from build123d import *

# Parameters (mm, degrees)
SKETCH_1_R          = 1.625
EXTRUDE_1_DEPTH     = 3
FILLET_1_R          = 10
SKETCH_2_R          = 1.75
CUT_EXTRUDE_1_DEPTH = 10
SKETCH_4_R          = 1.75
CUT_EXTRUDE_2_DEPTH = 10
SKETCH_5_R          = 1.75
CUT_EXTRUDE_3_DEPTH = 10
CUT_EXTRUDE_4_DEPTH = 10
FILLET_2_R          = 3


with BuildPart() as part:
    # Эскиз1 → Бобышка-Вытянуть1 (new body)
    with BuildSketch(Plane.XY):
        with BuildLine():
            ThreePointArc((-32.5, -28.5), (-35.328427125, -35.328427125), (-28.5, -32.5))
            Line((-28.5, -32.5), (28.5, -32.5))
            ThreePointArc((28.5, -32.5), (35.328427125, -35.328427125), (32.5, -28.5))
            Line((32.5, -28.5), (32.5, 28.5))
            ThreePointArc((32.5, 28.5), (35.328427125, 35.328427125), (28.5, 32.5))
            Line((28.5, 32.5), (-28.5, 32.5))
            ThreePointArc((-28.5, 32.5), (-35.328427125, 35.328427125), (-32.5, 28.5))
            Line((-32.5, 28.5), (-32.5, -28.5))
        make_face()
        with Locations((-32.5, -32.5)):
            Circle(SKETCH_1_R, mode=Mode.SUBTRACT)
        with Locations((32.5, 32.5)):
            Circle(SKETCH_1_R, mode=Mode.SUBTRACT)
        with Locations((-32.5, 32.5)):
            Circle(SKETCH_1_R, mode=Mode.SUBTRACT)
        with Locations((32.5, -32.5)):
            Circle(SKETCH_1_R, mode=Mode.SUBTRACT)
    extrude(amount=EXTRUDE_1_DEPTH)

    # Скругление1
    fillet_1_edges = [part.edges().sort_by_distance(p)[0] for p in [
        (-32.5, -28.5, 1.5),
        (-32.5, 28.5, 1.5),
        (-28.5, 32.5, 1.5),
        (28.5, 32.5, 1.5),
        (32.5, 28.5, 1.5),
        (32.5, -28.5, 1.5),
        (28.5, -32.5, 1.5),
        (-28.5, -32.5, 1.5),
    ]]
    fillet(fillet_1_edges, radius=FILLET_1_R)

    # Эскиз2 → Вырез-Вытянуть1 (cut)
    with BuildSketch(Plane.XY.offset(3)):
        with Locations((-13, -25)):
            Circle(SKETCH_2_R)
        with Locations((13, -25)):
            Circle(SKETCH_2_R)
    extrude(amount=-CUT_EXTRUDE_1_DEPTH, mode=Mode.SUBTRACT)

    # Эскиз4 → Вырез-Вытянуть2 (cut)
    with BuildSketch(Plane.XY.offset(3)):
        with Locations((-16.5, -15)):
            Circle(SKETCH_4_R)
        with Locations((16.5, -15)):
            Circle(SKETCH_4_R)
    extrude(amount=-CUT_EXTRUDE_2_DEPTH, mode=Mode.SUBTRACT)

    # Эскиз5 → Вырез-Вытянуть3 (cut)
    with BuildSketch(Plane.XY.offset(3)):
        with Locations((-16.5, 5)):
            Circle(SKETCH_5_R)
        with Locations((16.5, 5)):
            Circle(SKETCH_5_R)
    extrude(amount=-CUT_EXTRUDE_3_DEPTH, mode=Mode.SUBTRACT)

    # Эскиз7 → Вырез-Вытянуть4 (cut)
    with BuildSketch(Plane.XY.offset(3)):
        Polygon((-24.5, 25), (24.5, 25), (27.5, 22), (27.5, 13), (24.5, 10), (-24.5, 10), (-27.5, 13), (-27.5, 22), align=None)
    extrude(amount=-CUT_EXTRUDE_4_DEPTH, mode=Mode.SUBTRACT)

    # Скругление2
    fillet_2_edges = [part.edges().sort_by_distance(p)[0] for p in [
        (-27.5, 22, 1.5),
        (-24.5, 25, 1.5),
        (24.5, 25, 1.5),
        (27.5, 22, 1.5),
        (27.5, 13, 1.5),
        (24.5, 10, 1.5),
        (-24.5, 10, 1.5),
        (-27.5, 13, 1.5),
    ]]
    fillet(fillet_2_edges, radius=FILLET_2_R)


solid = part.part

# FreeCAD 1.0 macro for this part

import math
import FreeCAD as App
import Part
import Sketcher
Q = App.Units.Quantity


def edges_at(feature, points):
    """Names of the edges that pass closest to the given points."""
    edges = feature.Shape.Edges
    near = lambda p: min(range(len(edges)), key=lambda i: edges[i].distToShape(Part.Vertex(*p))[0])
    return sorted({f"Edge{near(p) + 1}" for p in points})

doc = App.newDocument("Part")
body = doc.addObject("PartDesign::Body", "Body")

sketch1 = body.newObject("Sketcher::SketchObject", "Sketch")
sketch1.AttachmentSupport = (doc.getObject("XY_Plane"), [""])
sketch1.MapMode = "FlatFace"
sketch1.addGeometry(Part.ArcOfCircle(Part.Circle(App.Vector(-32.5, -32.5, 0), App.Vector(0, 0, 1), 4), math.radians(90), math.radians(360)), False)
sketch1.addGeometry(Part.LineSegment(App.Vector(-28.5, -32.5, 0), App.Vector(28.5, -32.5, 0)), False)
sketch1.addGeometry(Part.ArcOfCircle(Part.Circle(App.Vector(32.5, -32.5, 0), App.Vector(0, 0, 1), 4), math.radians(180), math.radians(450)), False)
sketch1.addGeometry(Part.LineSegment(App.Vector(32.5, -28.5, 0), App.Vector(32.5, 28.5, 0)), False)
sketch1.addGeometry(Part.ArcOfCircle(Part.Circle(App.Vector(32.5, 32.5, 0), App.Vector(0, 0, 1), 4), math.radians(-90), math.radians(180)), False)
sketch1.addGeometry(Part.LineSegment(App.Vector(28.5, 32.5, 0), App.Vector(-28.5, 32.5, 0)), False)
sketch1.addGeometry(Part.ArcOfCircle(Part.Circle(App.Vector(-32.5, 32.5, 0), App.Vector(0, 0, 1), 4), math.radians(0), math.radians(270)), False)
sketch1.addGeometry(Part.LineSegment(App.Vector(-32.5, 28.5, 0), App.Vector(-32.5, -28.5, 0)), False)
sketch1.addGeometry(Part.Circle(App.Vector(-32.5, -32.5, 0), App.Vector(0, 0, 1), 1.6), False)
sketch1.addGeometry(Part.Circle(App.Vector(32.5, -32.5, 0), App.Vector(0, 0, 1), 1.6), False)
sketch1.addGeometry(Part.Circle(App.Vector(-32.5, 32.5, 0), App.Vector(0, 0, 1), 1.6), False)
sketch1.addGeometry(Part.Circle(App.Vector(32.5, 32.5, 0), App.Vector(0, 0, 1), 1.6), False)
sketch1.addConstraint(Sketcher.Constraint("Coincident", 0, 2, 1, 1))
sketch1.addConstraint(Sketcher.Constraint("Coincident", 1, 2, 2, 1))
sketch1.addConstraint(Sketcher.Constraint("Coincident", 2, 2, 3, 1))
sketch1.addConstraint(Sketcher.Constraint("Coincident", 3, 2, 4, 1))
sketch1.addConstraint(Sketcher.Constraint("Coincident", 4, 2, 5, 1))
sketch1.addConstraint(Sketcher.Constraint("Coincident", 5, 2, 6, 1))
sketch1.addConstraint(Sketcher.Constraint("Coincident", 6, 2, 7, 1))
sketch1.addConstraint(Sketcher.Constraint("Coincident", 7, 2, 0, 1))
sketch1.addConstraint(Sketcher.Constraint("Horizontal", 1))
sketch1.addConstraint(Sketcher.Constraint("Vertical", 3))
sketch1.addConstraint(Sketcher.Constraint("Horizontal", 5))
sketch1.addConstraint(Sketcher.Constraint("Vertical", 7))
sketch1.addConstraint(Sketcher.Constraint("Coincident", 8, 3, 0, 3))
sketch1.addConstraint(Sketcher.Constraint("Coincident", 9, 3, 2, 3))
sketch1.addConstraint(Sketcher.Constraint("Coincident", 10, 3, 6, 3))
sketch1.addConstraint(Sketcher.Constraint("Coincident", 11, 3, 4, 3))
sketch1.addConstraint(Sketcher.Constraint("Equal", 0, 2))
sketch1.addConstraint(Sketcher.Constraint("Equal", 2, 4))
sketch1.addConstraint(Sketcher.Constraint("Equal", 4, 6))
sketch1.addConstraint(Sketcher.Constraint("Equal", 8, 9))
sketch1.addConstraint(Sketcher.Constraint("Equal", 9, 10))
sketch1.addConstraint(Sketcher.Constraint("Equal", 10, 11))
sketch1.addConstraint(Sketcher.Constraint("Symmetric", 0, 3, 4, 3, -1, 1))
sketch1.addConstraint(Sketcher.Constraint("Symmetric", 2, 3, 6, 3, -1, 1))
sketch1.addConstraint(Sketcher.Constraint("Symmetric", 0, 3, 2, 3, -2))
sketch1.addConstraint(Sketcher.Constraint("Horizontal", 9, 3, 0, 2))
sketch1.addConstraint(Sketcher.Constraint("Horizontal", 11, 3, 4, 2))
sketch1.addConstraint(Sketcher.Constraint("Vertical", 11, 3, 2, 2))
sketch1.addConstraint(Sketcher.Constraint("Vertical", 10, 3, 6, 2))
sketch1.addConstraint(Sketcher.Constraint("Equal", 5, 3))
sketch1.addConstraint(Sketcher.Constraint("Radius", 0, Q("4 mm")))
sketch1.addConstraint(Sketcher.Constraint("Diameter", 8, Q("3.25 mm")))
sketch1.addConstraint(Sketcher.Constraint("DistanceX", 1, 1, 1, 2, Q("57 mm")))
pad1 = body.newObject("PartDesign::Pad", "Pad")
pad1.Profile = sketch1
pad1.Length = 3
doc.recompute()

fillet = body.newObject("PartDesign::Fillet", "Fillet")
fillet.Base = (pad1, edges_at(pad1, [
    (-32.5, -28.5, 1.5),
    (-32.5, 28.5, 1.5),
    (-28.5, 32.5, 1.5),
    (28.5, 32.5, 1.5),
    (32.5, 28.5, 1.5),
    (32.5, -28.5, 1.5),
    (28.5, -32.5, 1.5),
    (-28.5, -32.5, 1.5),
]))
fillet.Radius = 10

sketch2 = body.newObject("Sketcher::SketchObject", "Sketch001")
sketch2.AttachmentSupport = (doc.getObject("XY_Plane"), [""])
sketch2.MapMode = "FlatFace"
sketch2.AttachmentOffset = App.Placement(App.Vector(0, 0, 3), App.Rotation())
sketch2.addGeometry(Part.Circle(App.Vector(-13, -25, 0), App.Vector(0, 0, 1), 1.8), False)
sketch2.addGeometry(Part.Circle(App.Vector(13, -25, 0), App.Vector(0, 0, 1), 1.8), False)
sketch2.addConstraint(Sketcher.Constraint("Equal", 0, 1))
sketch2.addConstraint(Sketcher.Constraint("Symmetric", 0, 3, 1, 3, -2))
sketch2.addConstraint(Sketcher.Constraint("Diameter", 0, Q("3.5 mm")))
sketch2.addConstraint(Sketcher.Constraint("DistanceX", 0, 3, -1, 1, Q("13 mm")))
sketch2.addConstraint(Sketcher.Constraint("DistanceY", 0, 3, -1, 1, Q("25 mm")))
pocket1 = body.newObject("PartDesign::Pocket", "Pocket")
pocket1.Profile = sketch2
pocket1.Length = 10

sketch3 = body.newObject("Sketcher::SketchObject", "Sketch002")
sketch3.AttachmentSupport = (doc.getObject("XY_Plane"), [""])
sketch3.MapMode = "FlatFace"
sketch3.AttachmentOffset = App.Placement(App.Vector(0, 0, 3), App.Rotation())
sketch3.addGeometry(Part.Circle(App.Vector(-16.5, -15, 0), App.Vector(0, 0, 1), 1.8), False)
sketch3.addGeometry(Part.Circle(App.Vector(16.5, -15, 0), App.Vector(0, 0, 1), 1.8), False)
sketch3.addConstraint(Sketcher.Constraint("Equal", 0, 1))
sketch3.addConstraint(Sketcher.Constraint("Symmetric", 0, 3, 1, 3, -2))
sketch3.addConstraint(Sketcher.Constraint("Diameter", 0, Q("3.5 mm")))
sketch3.addConstraint(Sketcher.Constraint("DistanceY", 0, 3, -1, 1, Q("15 mm")))
sketch3.addConstraint(Sketcher.Constraint("DistanceX", 0, 3, 1, 3, Q("33 mm")))
pocket2 = body.newObject("PartDesign::Pocket", "Pocket001")
pocket2.Profile = sketch3
pocket2.Length = 10

sketch4 = body.newObject("Sketcher::SketchObject", "Sketch003")
sketch4.AttachmentSupport = (doc.getObject("XY_Plane"), [""])
sketch4.MapMode = "FlatFace"
sketch4.AttachmentOffset = App.Placement(App.Vector(0, 0, 3), App.Rotation())
sketch4.addGeometry(Part.Circle(App.Vector(-16.5, 5, 0), App.Vector(0, 0, 1), 1.8), False)
sketch4.addGeometry(Part.Circle(App.Vector(16.5, 5, 0), App.Vector(0, 0, 1), 1.8), False)
sketch4.addConstraint(Sketcher.Constraint("Equal", 0, 1))
sketch4.addConstraint(Sketcher.Constraint("Symmetric", 0, 3, 1, 3, -2))
sketch4.addConstraint(Sketcher.Constraint("Diameter", 0, Q("3.5 mm")))
sketch4.addConstraint(Sketcher.Constraint("DistanceY", -1, 1, 0, 3, Q("5 mm")))
sketch4.addConstraint(Sketcher.Constraint("DistanceX", 0, 3, 1, 3, Q("33 mm")))
pocket3 = body.newObject("PartDesign::Pocket", "Pocket002")
pocket3.Profile = sketch4
pocket3.Length = 10

sketch5 = body.newObject("Sketcher::SketchObject", "Sketch004")
sketch5.AttachmentSupport = (doc.getObject("XY_Plane"), [""])
sketch5.MapMode = "FlatFace"
sketch5.AttachmentOffset = App.Placement(App.Vector(0, 0, 3), App.Rotation())
sketch5.addGeometry(Part.LineSegment(App.Vector(24.5, 25, 0), App.Vector(-24.5, 25, 0)), False)
sketch5.addGeometry(Part.LineSegment(App.Vector(-24.5, 25, 0), App.Vector(-27.5, 22, 0)), False)
sketch5.addGeometry(Part.LineSegment(App.Vector(-27.5, 22, 0), App.Vector(-27.5, 13, 0)), False)
sketch5.addGeometry(Part.LineSegment(App.Vector(-27.5, 13, 0), App.Vector(-24.5, 10, 0)), False)
sketch5.addGeometry(Part.LineSegment(App.Vector(-24.5, 10, 0), App.Vector(24.5, 10, 0)), False)
sketch5.addGeometry(Part.LineSegment(App.Vector(24.5, 10, 0), App.Vector(27.5, 13, 0)), False)
sketch5.addGeometry(Part.LineSegment(App.Vector(27.5, 13, 0), App.Vector(27.5, 22, 0)), False)
sketch5.addGeometry(Part.LineSegment(App.Vector(27.5, 22, 0), App.Vector(24.5, 25, 0)), False)
sketch5.addConstraint(Sketcher.Constraint("Coincident", 0, 2, 1, 1))
sketch5.addConstraint(Sketcher.Constraint("Coincident", 1, 2, 2, 1))
sketch5.addConstraint(Sketcher.Constraint("Coincident", 2, 2, 3, 1))
sketch5.addConstraint(Sketcher.Constraint("Coincident", 3, 2, 4, 1))
sketch5.addConstraint(Sketcher.Constraint("Coincident", 4, 2, 5, 1))
sketch5.addConstraint(Sketcher.Constraint("Coincident", 5, 2, 6, 1))
sketch5.addConstraint(Sketcher.Constraint("Coincident", 6, 2, 7, 1))
sketch5.addConstraint(Sketcher.Constraint("Coincident", 7, 2, 0, 1))
sketch5.addConstraint(Sketcher.Constraint("Horizontal", 0))
sketch5.addConstraint(Sketcher.Constraint("Vertical", 2))
sketch5.addConstraint(Sketcher.Constraint("Horizontal", 4))
sketch5.addConstraint(Sketcher.Constraint("Vertical", 6))
sketch5.addConstraint(Sketcher.Constraint("Symmetric", 2, 2, 5, 2, -2))
sketch5.addConstraint(Sketcher.Constraint("Perpendicular", 1, 3))
sketch5.addConstraint(Sketcher.Constraint("Perpendicular", 3, 5))
sketch5.addConstraint(Sketcher.Constraint("Perpendicular", 5, 7))
sketch5.addConstraint(Sketcher.Constraint("Horizontal", 1, 2, 6, 2))
sketch5.addConstraint(Sketcher.Constraint("Vertical", 0, 2, 3, 2))
sketch5.addConstraint(Sketcher.Constraint("Vertical", 4, 2, 7, 2))
sketch5.addConstraint(Sketcher.Constraint("DistanceX", 0, 2, 0, 1, Q("49 mm")))
sketch5.addConstraint(Sketcher.Constraint("DistanceY", 2, 2, 2, 1, Q("9 mm")))
sketch5.addConstraint(Sketcher.Constraint("DistanceY", -1, 1, 0, 2, Q("25 mm")))
sketch5.addConstraint(Sketcher.Constraint("DistanceY", -1, 1, 1, 2, Q("22 mm")))
pocket4 = body.newObject("PartDesign::Pocket", "Pocket003")
pocket4.Profile = sketch5
pocket4.Length = 10
doc.recompute()

fillet2 = body.newObject("PartDesign::Fillet", "Fillet001")
fillet2.Base = (pocket4, edges_at(pocket4, [
    (-27.5, 22, 1.5),
    (-24.5, 25, 1.5),
    (24.5, 25, 1.5),
    (27.5, 22, 1.5),
    (27.5, 13, 1.5),
    (24.5, 10, 1.5),
    (-24.5, 10, 1.5),
    (-27.5, 13, 1.5),
]))
fillet2.Radius = 3

doc.recompute()
